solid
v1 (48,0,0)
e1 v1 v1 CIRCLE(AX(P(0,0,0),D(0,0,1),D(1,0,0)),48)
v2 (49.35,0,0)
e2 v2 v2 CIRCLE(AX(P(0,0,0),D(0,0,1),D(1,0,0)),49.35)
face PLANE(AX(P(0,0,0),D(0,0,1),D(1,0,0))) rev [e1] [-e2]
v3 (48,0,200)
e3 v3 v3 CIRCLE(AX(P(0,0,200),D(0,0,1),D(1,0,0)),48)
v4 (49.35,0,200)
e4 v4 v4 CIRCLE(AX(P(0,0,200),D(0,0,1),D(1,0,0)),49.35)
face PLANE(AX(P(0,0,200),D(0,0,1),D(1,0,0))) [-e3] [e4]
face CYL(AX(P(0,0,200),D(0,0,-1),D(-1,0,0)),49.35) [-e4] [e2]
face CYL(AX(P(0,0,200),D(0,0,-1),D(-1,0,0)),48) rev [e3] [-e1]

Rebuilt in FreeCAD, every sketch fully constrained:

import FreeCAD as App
import Part
import Sketcher

doc = App.newDocument("Part")
params = doc.addObject("Spreadsheet::Sheet", "Params")
for row, (alias, value) in enumerate([
    ("sketch1_diameter", "96 mm"),
    ("sketch1_diameter2", "98.7 mm"),
    ("pad1_length", "200 mm"),
], start=1):
    params.set(f"A{row}", alias)
    params.set(f"B{row}", "=" + value)
    params.setAlias(f"B{row}", alias)

body = doc.addObject("PartDesign::Body", "Body")

sketch1 = body.newObject("Sketcher::SketchObject", "Sketch")
sketch1.AttachmentSupport = (doc.getObject("XY_Plane"), [""])
sketch1.MapMode = "FlatFace"
sketch1.addGeometry(Part.Circle(App.Vector(0, 0, 0), App.Vector(0, 0, 1), 49), False)
sketch1.addGeometry(Part.Circle(App.Vector(0, 0, 0), App.Vector(0, 0, 1), 48), False)
sketch1.addConstraint(Sketcher.Constraint("Coincident", 0, 3, -1, 1))
sketch1.addConstraint(Sketcher.Constraint("Coincident", 1, 3, -1, 1))
sketch1.addConstraint(Sketcher.Constraint("Diameter", 1, 96.0))
sketch1.addConstraint(Sketcher.Constraint("Diameter", 0, 98.7))
sketch1.setExpression("Constraints[2]", "Params.sketch1_diameter")
sketch1.setExpression("Constraints[3]", "Params.sketch1_diameter2")
pad1 = body.newObject("PartDesign::Pad", "Pad")
pad1.Profile = sketch1
pad1.setExpression("Length", "Params.pad1_length")

doc.recompute()
